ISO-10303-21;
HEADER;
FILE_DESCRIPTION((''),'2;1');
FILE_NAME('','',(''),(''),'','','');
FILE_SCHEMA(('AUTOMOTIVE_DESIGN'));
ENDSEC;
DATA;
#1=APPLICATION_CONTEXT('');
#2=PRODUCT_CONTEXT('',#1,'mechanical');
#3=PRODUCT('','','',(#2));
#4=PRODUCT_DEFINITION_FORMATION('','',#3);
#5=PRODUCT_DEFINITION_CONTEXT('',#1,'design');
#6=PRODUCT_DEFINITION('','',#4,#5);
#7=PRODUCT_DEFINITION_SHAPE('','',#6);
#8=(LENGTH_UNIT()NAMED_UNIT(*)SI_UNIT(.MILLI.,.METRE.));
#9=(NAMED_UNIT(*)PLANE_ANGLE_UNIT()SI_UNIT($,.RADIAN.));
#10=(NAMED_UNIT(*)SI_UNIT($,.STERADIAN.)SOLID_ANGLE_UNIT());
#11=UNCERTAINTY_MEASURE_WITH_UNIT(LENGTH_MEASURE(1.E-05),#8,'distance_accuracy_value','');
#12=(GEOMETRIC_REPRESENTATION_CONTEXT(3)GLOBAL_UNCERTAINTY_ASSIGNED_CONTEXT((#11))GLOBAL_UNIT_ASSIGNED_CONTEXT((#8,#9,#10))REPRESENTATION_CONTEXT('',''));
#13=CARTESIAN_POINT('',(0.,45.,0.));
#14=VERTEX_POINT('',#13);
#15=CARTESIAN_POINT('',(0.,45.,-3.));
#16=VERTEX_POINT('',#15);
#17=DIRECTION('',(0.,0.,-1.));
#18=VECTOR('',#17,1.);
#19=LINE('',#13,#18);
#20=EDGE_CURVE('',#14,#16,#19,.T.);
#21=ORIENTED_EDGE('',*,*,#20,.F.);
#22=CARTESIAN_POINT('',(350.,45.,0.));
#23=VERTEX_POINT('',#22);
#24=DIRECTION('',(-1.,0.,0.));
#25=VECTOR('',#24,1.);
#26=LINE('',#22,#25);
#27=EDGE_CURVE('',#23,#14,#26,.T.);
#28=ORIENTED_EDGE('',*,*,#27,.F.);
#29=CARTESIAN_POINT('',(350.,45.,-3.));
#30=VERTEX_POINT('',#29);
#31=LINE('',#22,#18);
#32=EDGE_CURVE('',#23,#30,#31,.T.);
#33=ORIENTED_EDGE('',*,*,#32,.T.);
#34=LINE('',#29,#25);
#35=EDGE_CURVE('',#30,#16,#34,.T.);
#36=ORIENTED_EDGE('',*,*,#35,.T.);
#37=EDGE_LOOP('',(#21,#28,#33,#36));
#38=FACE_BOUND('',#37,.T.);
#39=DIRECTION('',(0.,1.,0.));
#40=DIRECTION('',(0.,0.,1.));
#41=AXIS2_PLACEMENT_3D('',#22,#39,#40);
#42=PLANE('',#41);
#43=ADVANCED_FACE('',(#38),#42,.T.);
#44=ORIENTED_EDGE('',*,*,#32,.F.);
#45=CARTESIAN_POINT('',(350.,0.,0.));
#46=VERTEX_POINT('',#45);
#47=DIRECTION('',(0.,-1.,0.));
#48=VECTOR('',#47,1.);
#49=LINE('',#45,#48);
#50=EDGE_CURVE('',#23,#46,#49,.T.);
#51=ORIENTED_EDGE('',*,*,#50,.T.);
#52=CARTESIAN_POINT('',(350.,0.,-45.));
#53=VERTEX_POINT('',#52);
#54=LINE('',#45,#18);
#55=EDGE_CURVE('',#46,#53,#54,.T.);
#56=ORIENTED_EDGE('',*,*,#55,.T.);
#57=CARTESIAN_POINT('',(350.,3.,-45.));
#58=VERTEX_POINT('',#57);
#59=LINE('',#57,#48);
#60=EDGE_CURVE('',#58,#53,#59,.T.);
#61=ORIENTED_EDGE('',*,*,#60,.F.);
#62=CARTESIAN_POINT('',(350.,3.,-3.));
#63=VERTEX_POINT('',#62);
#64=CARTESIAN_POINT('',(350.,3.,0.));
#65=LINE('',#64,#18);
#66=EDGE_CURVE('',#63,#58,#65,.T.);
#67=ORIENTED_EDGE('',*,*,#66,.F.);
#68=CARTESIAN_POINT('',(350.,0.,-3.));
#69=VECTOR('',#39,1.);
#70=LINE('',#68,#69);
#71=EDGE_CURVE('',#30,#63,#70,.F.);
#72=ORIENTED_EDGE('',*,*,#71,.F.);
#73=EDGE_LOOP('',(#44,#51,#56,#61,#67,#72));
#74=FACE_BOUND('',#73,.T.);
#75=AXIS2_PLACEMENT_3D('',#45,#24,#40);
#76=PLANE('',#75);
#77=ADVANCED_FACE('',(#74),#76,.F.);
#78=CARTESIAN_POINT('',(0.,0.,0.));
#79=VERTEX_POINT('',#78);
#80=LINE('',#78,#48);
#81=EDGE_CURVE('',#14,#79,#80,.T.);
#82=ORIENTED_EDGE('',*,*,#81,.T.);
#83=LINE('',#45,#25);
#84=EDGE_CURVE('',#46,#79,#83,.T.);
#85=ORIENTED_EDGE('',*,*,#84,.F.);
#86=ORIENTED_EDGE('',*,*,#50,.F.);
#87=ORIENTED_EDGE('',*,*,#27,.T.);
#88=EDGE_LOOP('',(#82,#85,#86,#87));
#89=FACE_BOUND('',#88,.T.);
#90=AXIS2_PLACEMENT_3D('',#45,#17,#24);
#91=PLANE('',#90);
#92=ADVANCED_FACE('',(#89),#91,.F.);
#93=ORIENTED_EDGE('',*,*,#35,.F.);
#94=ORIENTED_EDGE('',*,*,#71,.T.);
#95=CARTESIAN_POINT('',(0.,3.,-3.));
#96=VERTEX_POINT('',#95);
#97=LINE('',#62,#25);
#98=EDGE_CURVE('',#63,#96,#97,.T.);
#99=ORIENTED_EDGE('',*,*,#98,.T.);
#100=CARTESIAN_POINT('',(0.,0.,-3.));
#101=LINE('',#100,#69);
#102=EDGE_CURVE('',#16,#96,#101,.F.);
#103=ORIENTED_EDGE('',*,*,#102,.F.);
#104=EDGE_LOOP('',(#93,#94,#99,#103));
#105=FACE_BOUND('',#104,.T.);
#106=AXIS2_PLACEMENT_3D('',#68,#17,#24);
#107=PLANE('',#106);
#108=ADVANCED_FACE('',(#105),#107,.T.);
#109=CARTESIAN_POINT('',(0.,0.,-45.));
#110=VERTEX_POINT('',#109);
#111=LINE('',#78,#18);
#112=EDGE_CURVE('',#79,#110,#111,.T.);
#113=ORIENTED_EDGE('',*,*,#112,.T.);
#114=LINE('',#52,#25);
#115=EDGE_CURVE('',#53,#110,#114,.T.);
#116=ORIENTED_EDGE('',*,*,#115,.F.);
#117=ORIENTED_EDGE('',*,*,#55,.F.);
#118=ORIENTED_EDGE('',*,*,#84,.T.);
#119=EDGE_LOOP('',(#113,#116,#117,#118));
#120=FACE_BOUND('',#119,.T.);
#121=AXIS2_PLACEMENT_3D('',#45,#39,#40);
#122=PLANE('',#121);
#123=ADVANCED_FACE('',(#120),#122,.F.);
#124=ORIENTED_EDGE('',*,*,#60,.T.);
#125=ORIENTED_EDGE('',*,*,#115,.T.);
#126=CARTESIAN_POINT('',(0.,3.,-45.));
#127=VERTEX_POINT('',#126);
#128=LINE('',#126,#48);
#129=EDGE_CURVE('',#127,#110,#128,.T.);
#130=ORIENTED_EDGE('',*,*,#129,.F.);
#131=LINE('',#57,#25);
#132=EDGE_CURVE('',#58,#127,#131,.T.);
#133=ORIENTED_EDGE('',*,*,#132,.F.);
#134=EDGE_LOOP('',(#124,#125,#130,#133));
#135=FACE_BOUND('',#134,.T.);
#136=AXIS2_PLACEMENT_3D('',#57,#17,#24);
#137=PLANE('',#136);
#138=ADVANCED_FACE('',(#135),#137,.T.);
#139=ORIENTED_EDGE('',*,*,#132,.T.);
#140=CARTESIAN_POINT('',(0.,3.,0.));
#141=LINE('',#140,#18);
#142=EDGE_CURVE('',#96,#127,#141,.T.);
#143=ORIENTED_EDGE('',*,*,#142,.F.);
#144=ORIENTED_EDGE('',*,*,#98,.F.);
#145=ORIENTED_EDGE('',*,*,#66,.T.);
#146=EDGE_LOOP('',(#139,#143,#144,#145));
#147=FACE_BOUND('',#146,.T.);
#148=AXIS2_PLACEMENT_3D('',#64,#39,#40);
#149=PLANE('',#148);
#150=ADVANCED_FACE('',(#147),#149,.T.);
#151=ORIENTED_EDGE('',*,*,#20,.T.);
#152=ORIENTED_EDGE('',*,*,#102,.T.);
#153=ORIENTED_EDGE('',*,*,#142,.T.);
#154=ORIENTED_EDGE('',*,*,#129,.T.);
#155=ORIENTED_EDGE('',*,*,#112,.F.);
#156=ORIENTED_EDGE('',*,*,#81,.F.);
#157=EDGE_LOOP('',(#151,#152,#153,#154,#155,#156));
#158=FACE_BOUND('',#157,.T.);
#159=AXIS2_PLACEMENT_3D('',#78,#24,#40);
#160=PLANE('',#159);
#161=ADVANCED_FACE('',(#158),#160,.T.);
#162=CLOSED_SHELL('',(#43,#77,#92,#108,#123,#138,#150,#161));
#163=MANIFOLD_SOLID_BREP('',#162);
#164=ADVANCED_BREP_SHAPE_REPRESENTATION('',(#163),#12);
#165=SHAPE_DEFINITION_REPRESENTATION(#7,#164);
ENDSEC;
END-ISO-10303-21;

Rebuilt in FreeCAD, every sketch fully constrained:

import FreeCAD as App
import Part
import Sketcher
from FreeCAD import Vector
Q = App.Units.Quantity


def add_polygon(sketch, points):
    """Adds a closed chain of lines whose ends are joined by coincident constraints."""
    first, n = sketch.GeometryCount, len(points)
    for a, b in zip(points, points[1:] + points[:1]):
        sketch.addGeometry(Part.LineSegment(App.Vector(*a, 0), App.Vector(*b, 0)), False)
    for i in range(n):
        sketch.addConstraint(Sketcher.Constraint("Coincident", first + i, 2, first + (i + 1) % n, 1))

doc = App.newDocument("Part")
body = doc.addObject("PartDesign::Body", "Body")

sketch1 = body.newObject("Sketcher::SketchObject", "Sketch")
sketch1.AttachmentSupport = (doc.getObject("YZ_Plane"), [""])
sketch1.MapMode = "FlatFace"
add_polygon(sketch1, [(0, 0), (0, -45), (3, -45), (3, -3), (45, -3), (45, 0)])
sketch1.addConstraint([
    Sketcher.Constraint("Vertical", 0),
    Sketcher.Constraint("Horizontal", 1),
    Sketcher.Constraint("Vertical", 2),
    Sketcher.Constraint("Horizontal", 3),
    Sketcher.Constraint("Vertical", 4),
    Sketcher.Constraint("Horizontal", 5),
    Sketcher.Constraint("Coincident", 5, 2, -1, 1),
    Sketcher.Constraint("Equal", 5, 0),
    Sketcher.Constraint("Equal", 3, 2),
    Sketcher.Constraint("DistanceX", 1, 1, 1, 2, Q("3 mm")),
    Sketcher.Constraint("DistanceX", 3, 1, 3, 2, Q("42 mm")),
])
pad1 = body.newObject("PartDesign::Pad", "Pad")
pad1.Profile = sketch1
pad1.Length = 350

doc.recompute()
